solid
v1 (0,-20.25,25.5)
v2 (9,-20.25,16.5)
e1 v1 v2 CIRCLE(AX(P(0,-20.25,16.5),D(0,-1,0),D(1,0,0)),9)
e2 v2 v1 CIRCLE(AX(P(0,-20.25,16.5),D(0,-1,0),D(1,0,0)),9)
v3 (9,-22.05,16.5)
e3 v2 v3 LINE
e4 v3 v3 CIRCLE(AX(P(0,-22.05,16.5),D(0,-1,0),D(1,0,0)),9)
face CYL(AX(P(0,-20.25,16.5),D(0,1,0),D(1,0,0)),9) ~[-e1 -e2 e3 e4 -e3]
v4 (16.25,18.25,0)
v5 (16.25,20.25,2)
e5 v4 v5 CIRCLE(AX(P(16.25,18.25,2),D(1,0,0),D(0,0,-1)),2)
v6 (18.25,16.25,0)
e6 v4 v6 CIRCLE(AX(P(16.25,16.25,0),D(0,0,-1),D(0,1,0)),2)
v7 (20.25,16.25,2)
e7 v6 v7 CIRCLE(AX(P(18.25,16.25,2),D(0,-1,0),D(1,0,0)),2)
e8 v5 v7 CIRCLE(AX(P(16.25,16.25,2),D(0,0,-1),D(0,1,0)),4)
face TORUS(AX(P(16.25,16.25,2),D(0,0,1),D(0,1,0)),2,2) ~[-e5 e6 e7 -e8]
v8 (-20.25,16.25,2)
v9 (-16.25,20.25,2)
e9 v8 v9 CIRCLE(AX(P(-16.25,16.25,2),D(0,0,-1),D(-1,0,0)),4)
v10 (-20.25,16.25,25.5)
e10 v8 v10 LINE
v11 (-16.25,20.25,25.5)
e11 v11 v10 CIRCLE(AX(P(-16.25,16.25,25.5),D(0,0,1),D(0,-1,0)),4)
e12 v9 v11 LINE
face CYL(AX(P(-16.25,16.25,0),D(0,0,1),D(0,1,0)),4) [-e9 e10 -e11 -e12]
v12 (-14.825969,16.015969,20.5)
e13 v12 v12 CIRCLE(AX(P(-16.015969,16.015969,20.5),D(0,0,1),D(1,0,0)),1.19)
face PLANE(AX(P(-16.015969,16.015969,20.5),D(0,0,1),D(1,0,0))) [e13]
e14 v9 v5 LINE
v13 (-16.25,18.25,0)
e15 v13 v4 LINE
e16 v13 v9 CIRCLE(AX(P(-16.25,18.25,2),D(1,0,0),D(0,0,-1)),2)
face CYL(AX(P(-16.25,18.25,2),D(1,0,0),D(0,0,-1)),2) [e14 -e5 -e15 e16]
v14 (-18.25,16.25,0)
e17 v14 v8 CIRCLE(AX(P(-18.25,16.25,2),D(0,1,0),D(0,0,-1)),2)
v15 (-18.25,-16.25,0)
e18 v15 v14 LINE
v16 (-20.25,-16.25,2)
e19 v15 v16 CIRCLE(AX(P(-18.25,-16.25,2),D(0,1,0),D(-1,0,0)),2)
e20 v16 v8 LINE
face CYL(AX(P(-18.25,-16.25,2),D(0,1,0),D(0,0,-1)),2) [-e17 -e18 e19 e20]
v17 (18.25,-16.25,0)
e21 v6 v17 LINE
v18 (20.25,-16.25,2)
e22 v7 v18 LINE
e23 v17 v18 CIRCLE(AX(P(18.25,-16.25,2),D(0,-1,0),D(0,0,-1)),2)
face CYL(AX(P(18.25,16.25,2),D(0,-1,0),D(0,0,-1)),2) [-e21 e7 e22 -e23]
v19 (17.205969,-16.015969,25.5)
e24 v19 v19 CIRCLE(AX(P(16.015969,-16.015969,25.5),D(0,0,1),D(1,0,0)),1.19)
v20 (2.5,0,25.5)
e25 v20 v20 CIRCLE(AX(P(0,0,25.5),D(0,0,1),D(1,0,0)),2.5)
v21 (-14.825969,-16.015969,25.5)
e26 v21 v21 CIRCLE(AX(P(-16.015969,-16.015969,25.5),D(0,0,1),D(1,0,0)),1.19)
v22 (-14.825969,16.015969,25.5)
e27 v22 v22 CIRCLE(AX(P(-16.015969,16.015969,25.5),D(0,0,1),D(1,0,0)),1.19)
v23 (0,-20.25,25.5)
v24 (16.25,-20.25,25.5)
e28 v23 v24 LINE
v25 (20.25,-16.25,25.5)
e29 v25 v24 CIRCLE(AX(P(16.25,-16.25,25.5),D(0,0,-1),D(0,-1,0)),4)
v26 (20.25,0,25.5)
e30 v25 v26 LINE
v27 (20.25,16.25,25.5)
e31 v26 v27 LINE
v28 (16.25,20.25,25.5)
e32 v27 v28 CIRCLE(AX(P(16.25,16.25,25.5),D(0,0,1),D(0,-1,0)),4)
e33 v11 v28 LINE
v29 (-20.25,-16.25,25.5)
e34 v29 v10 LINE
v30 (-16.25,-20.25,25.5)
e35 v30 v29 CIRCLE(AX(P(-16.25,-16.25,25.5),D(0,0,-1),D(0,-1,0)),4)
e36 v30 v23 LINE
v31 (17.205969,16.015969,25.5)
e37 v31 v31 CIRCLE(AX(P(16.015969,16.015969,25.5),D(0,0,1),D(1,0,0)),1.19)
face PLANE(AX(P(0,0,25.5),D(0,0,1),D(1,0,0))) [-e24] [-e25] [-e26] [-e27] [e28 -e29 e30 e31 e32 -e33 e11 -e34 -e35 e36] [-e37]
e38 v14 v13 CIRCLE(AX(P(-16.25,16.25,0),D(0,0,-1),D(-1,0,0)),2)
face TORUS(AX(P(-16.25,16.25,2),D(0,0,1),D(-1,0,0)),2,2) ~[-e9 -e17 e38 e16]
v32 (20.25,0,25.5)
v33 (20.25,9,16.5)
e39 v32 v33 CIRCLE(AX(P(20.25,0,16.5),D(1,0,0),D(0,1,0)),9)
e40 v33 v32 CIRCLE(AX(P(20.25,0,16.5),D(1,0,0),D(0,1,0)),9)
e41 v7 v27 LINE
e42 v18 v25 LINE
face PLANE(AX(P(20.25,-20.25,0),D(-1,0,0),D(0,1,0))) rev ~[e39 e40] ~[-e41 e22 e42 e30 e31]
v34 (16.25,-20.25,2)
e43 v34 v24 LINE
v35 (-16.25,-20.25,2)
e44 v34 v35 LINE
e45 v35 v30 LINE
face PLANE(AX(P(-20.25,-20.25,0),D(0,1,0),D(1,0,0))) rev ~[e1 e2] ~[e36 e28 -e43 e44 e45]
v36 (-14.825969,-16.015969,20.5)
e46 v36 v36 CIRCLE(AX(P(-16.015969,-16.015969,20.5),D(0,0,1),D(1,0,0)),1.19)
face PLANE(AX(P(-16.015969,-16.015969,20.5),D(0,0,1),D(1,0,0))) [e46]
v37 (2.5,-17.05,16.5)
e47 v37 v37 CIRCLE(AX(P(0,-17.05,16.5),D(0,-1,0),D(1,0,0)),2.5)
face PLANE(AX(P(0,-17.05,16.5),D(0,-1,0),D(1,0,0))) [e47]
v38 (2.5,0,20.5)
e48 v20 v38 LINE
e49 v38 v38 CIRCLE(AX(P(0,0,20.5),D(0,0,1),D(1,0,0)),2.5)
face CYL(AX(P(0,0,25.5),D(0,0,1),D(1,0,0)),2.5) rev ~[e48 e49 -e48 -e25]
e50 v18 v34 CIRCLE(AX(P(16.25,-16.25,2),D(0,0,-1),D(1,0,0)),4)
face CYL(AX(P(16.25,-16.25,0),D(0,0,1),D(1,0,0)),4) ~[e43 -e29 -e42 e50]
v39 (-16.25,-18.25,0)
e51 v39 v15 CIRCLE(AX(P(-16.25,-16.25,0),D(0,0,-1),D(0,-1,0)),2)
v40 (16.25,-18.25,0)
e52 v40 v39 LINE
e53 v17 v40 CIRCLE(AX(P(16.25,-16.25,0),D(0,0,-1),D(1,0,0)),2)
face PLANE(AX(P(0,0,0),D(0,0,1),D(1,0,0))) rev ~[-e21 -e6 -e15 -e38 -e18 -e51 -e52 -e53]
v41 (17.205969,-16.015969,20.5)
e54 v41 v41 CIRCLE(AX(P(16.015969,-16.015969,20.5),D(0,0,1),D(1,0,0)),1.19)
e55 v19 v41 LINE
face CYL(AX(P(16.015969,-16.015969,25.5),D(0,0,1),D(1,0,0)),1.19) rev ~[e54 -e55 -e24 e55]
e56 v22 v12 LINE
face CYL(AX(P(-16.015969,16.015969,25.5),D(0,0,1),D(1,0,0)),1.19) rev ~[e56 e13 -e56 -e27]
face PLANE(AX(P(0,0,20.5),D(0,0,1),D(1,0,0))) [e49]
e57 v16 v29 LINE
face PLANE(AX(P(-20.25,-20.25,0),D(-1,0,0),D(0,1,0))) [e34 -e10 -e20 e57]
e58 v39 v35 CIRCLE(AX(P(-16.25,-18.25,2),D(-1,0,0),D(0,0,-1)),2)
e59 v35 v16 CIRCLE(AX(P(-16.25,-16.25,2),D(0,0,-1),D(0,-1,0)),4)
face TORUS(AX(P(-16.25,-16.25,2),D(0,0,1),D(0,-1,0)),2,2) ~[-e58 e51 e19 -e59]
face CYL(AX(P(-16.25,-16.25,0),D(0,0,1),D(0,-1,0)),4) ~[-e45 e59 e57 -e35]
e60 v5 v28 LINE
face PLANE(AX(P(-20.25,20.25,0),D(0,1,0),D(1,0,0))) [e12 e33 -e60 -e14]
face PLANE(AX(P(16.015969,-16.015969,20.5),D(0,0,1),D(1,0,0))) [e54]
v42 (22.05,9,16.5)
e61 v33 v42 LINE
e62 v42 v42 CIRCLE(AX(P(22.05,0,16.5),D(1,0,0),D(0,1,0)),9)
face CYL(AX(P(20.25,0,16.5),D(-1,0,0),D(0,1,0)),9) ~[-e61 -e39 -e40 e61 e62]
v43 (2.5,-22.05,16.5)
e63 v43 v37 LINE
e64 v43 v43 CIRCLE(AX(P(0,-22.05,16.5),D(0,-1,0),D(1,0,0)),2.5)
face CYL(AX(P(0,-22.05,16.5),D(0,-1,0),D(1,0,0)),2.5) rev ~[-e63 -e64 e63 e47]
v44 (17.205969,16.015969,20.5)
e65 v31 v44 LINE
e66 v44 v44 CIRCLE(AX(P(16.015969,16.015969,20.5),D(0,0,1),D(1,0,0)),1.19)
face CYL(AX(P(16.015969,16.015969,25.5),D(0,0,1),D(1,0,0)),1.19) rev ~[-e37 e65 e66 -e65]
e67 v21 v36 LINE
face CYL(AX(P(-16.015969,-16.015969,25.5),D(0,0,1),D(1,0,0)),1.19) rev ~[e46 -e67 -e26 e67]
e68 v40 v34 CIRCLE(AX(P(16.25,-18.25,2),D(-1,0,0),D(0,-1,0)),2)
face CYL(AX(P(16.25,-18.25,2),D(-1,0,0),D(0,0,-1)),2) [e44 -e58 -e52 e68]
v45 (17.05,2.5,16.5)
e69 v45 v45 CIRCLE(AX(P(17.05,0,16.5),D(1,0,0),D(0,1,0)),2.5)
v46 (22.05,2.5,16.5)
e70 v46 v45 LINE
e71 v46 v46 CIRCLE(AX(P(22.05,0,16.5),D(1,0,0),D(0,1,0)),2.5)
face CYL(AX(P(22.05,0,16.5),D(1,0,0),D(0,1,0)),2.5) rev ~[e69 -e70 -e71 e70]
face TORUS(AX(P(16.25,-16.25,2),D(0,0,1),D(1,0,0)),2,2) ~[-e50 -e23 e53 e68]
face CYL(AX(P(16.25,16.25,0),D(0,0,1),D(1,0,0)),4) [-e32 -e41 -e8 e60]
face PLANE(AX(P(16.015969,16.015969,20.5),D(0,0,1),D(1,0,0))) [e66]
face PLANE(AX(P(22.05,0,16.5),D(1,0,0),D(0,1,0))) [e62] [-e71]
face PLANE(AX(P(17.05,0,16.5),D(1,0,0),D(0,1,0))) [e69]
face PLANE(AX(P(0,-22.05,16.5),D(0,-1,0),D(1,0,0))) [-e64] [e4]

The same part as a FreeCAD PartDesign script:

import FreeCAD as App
import Part
import Sketcher


def edges_at(feature, points):
    """Names of the edges that pass closest to the given points."""
    edges = feature.Shape.Edges
    near = lambda p: min(range(len(edges)), key=lambda i: edges[i].distToShape(Part.Vertex(*p))[0])
    return sorted({f"Edge{near(p) + 1}" for p in points})

doc = App.newDocument("Part")
body = doc.addObject("PartDesign::Body", "Body")

sketch1 = doc.addObject("Sketcher::SketchObject", "Sketch")
body.addObject(sketch1)
sketch1.AttachmentSupport = (doc.XY_Plane, [""])
sketch1.MapMode = "FlatFace"
sketch1.addGeometry([
    Part.LineSegment(App.Vector(-20, 20, 0), App.Vector(-20, -20, 0)),
    Part.LineSegment(App.Vector(-20, -20, 0), App.Vector(20, -20, 0)),
    Part.LineSegment(App.Vector(20, -20, 0), App.Vector(20, 20, 0)),
    Part.LineSegment(App.Vector(20, 20, 0), App.Vector(-20, 20, 0)),
], False)
sketch1.addConstraint([
    Sketcher.Constraint("Coincident", 0, 2, 1, 1),
    Sketcher.Constraint("Coincident", 1, 2, 2, 1),
    Sketcher.Constraint("Coincident", 2, 2, 3, 1),
    Sketcher.Constraint("Coincident", 3, 2, 0, 1),
    Sketcher.Constraint("Vertical", 0),
    Sketcher.Constraint("Horizontal", 1),
    Sketcher.Constraint("Vertical", 2),
    Sketcher.Constraint("Horizontal", 3),
    Sketcher.Constraint("Symmetric", 0, 2, 2, 2, -1, 1),
    Sketcher.Constraint("Equal", 3, 0),
    Sketcher.Constraint("DistanceX", 1, 1, 1, 2, 40.5),
])
pad1 = doc.addObject("PartDesign::Pad", "Pad")
body.addObject(pad1)
pad1.Profile = sketch1
pad1.Length = 25.5

sketch2 = doc.addObject("Sketcher::SketchObject", "Sketch001")
body.addObject(sketch2)
sketch2.AttachmentSupport = (doc.XZ_Plane, [""])
sketch2.MapMode = "FlatFace"
sketch2.AttachmentOffset = App.Placement(App.Vector(0, 0, 20.25), App.Rotation())
sketch2.addGeometry(Part.Circle(App.Vector(0, 16, 0), App.Vector(0, 0, 1), 9), False)
sketch2.addConstraint([
    Sketcher.Constraint("PointOnObject", 0, 3, -2),
    Sketcher.Constraint("Diameter", 0, 18.0),
    Sketcher.Constraint("DistanceY", -1, 1, 0, 3, 16.5),
])
pad2 = doc.addObject("PartDesign::Pad", "Pad001")
body.addObject(pad2)
pad2.Profile = sketch2
pad2.Length = 1.8
doc.recompute()

polarpattern = doc.addObject("PartDesign::PolarPattern", "PolarPattern")
body.addObject(polarpattern)
polarpattern.Originals = [pad2]
polarpattern.Axis = (doc.Z_Axis, [""])
polarpattern.Angle = 90
polarpattern.Occurrences = 2
body.Tip = polarpattern

sketch3 = doc.addObject("Sketcher::SketchObject", "Sketch002")
body.addObject(sketch3)
sketch3.AttachmentSupport = (doc.XZ_Plane, [""])
sketch3.MapMode = "FlatFace"
sketch3.AttachmentOffset = App.Placement(App.Vector(0, 0, 22.05), App.Rotation())
sketch3.addGeometry(Part.Circle(App.Vector(0, 16.5, 0), App.Vector(0, 0, 1), 2.5), False)
sketch3.addConstraint([
    Sketcher.Constraint("PointOnObject", 0, 3, -2),
    Sketcher.Constraint("Diameter", 0, 5.0),
    Sketcher.Constraint("DistanceY", -1, 1, 0, 3, 16.5),
])
pocket1 = doc.addObject("PartDesign::Pocket", "Pocket")
body.addObject(pocket1)
pocket1.Profile = sketch3
pocket1.Length = 5
doc.recompute()

polarpattern2 = doc.addObject("PartDesign::PolarPattern", "PolarPattern001")
body.addObject(polarpattern2)
polarpattern2.Originals = [pocket1]
polarpattern2.Axis = (doc.Z_Axis, [""])
polarpattern2.Angle = 90
polarpattern2.Occurrences = 2
body.Tip = polarpattern2

sketch4 = doc.addObject("Sketcher::SketchObject", "Sketch003")
body.addObject(sketch4)
sketch4.AttachmentSupport = (doc.XY_Plane, [""])
sketch4.MapMode = "FlatFace"
sketch4.AttachmentOffset = App.Placement(App.Vector(0, 0, 25.5), App.Rotation())
sketch4.addGeometry([
    Part.Circle(App.Vector(0, 0, 0), App.Vector(0, 0, 1), 2.5),
    Part.Circle(App.Vector(-16, 16, 0), App.Vector(0, 0, 1), 1.2),
    Part.Circle(App.Vector(16, 16, 0), App.Vector(0, 0, 1), 1.2),
    Part.Circle(App.Vector(-16, -16, 0), App.Vector(0, 0, 1), 1.2),
    Part.Circle(App.Vector(16, -16, 0), App.Vector(0, 0, 1), 1.2),
], False)
sketch4.addConstraint([
    Sketcher.Constraint("Coincident", 0, 3, -1, 1),
    Sketcher.Constraint("Equal", 1, 2),
    Sketcher.Constraint("Equal", 2, 3),
    Sketcher.Constraint("Equal", 3, 4),
    Sketcher.Constraint("Symmetric", 2, 3, 3, 3, -1, 1),
    Sketcher.Constraint("Symmetric", 1, 3, 4, 3, -1, 1),
    Sketcher.Constraint("Symmetric", 1, 3, 2, 3, -2),
    Sketcher.Constraint("Diameter", 0, 5.0),
    Sketcher.Constraint("Diameter", 1, 2.38),
    Sketcher.Constraint("DistanceX", 1, 3, -1, 1, 16.015969),
    Sketcher.Constraint("DistanceY", -1, 1, 1, 3, 16.015969),
])
pocket2 = doc.addObject("PartDesign::Pocket", "Pocket001")
body.addObject(pocket2)
pocket2.Profile = sketch4
pocket2.Length = 5

sketch5 = doc.addObject("Sketcher::SketchObject", "Sketch004")
body.addObject(sketch5)
sketch5.AttachmentSupport = (doc.XY_Plane, [""])
sketch5.MapMode = "FlatFace"
sketch5.AttachmentOffset = App.Placement(App.Vector(0, 0, 25.5), App.Rotation())
sketch5.addGeometry([
    Part.Circle(App.Vector(0, 0, 0), App.Vector(0, 0, 1), 2.5),
    Part.Circle(App.Vector(-16, 16, 0), App.Vector(0, 0, 1), 1.2),
    Part.Circle(App.Vector(16, 16, 0), App.Vector(0, 0, 1), 1.2),
    Part.Circle(App.Vector(-16, -16, 0), App.Vector(0, 0, 1), 1.2),
    Part.Circle(App.Vector(16, -16, 0), App.Vector(0, 0, 1), 1.2),
], False)
sketch5.addConstraint([
    Sketcher.Constraint("Coincident", 0, 3, -1, 1),
    Sketcher.Constraint("Equal", 1, 2),
    Sketcher.Constraint("Equal", 2, 3),
    Sketcher.Constraint("Equal", 3, 4),
    Sketcher.Constraint("Symmetric", 2, 3, 3, 3, -1, 1),
    Sketcher.Constraint("Symmetric", 1, 3, 4, 3, -1, 1),
    Sketcher.Constraint("Symmetric", 1, 3, 2, 3, -2),
    Sketcher.Constraint("Diameter", 0, 5.0),
    Sketcher.Constraint("Diameter", 1, 2.38),
    Sketcher.Constraint("DistanceX", 1, 3, -1, 1, 16.015969),
    Sketcher.Constraint("DistanceY", -1, 1, 1, 3, 16.015969),
])
pocket3 = doc.addObject("PartDesign::Pocket", "Pocket002")
body.addObject(pocket3)
pocket3.Profile = sketch5
pocket3.Length = 5
doc.recompute()

fillet = doc.addObject("PartDesign::Fillet", "Fillet")
body.addObject(fillet)
fillet.Base = (pocket3, edges_at(pocket3, [
    (20.25, 20.25, 12.75),
    (20.25, -20.25, 12.75),
    (-20.25, -20.25, 12.75),
    (-20.25, 20.25, 12.75),
]))
fillet.Radius = 4
doc.recompute()

fillet2 = doc.addObject("PartDesign::Fillet", "Fillet001")
body.addObject(fillet2)
fillet2.Base = (fillet, edges_at(fillet, [
    (0, 20.25, 0),
    (-19.078, 19.078, 0),
    (19.078, 19.078, 0),
    (-20.25, 0, 0),
    (20.25, 0, 0),
    (-19.078, -19.078, 0),
    (19.078, -19.078, 0),
    (0, -20.25, 0),
]))
fillet2.Radius = 2

doc.recompute()
